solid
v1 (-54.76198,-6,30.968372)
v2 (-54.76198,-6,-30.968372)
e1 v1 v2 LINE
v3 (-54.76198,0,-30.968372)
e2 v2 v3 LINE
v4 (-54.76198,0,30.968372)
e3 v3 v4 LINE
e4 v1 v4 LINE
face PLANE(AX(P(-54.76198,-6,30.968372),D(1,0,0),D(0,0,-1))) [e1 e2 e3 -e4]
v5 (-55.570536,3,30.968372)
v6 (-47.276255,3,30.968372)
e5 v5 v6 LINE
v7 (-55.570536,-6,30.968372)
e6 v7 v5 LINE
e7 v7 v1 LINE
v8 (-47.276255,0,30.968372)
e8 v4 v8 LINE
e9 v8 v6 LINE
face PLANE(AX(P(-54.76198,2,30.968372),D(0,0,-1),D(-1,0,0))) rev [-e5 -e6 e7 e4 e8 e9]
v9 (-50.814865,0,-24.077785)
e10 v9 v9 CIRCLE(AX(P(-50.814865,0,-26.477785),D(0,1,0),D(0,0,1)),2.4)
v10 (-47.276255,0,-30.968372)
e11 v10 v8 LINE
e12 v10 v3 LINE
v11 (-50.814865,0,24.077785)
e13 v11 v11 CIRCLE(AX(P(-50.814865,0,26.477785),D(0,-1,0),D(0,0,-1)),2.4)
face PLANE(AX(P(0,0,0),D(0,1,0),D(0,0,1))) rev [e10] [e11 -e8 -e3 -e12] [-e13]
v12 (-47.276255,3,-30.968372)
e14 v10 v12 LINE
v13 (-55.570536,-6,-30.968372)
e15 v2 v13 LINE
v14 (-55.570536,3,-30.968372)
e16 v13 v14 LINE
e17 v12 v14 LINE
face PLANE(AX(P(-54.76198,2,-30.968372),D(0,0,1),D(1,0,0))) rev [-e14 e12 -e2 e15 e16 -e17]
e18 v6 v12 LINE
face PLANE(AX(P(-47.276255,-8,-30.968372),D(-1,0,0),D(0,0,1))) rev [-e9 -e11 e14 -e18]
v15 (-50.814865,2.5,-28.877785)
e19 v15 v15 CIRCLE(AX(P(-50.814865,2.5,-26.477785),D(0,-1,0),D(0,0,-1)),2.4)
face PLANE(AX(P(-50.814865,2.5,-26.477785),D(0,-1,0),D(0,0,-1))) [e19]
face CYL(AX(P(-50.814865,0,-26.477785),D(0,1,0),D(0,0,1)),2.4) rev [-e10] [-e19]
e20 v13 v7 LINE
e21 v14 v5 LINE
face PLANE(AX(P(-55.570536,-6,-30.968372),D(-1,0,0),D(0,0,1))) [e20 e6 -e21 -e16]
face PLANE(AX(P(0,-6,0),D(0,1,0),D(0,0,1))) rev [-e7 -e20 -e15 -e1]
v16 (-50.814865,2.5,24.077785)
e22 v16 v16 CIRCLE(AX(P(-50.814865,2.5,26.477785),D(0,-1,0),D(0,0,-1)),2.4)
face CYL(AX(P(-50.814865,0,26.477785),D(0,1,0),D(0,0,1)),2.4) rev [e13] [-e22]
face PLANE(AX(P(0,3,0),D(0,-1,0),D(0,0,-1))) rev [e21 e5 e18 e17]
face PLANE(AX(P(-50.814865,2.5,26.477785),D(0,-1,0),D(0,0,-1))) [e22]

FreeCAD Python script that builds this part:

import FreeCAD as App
import Part
import Sketcher
Q = App.Units.Quantity

doc = App.newDocument("Part")
params = doc.addObject("Spreadsheet::Sheet", "Params")
for row, (alias, value) in enumerate([
    ("pad1_length", "2 mm"),
    ("sketch2_diameter", "4.8 mm"),
    ("pocket1_length", "127.887482 mm"),
    ("sketch3_diameter", "4.8 mm"),
    ("pocket2_length", "127.887482 mm"),
    ("pocket4_length", "10 mm"),
    ("pad2_length", "8 mm"),
    ("pad3_length", "1 mm"),
    ("sketch8_diameter", "4.8 mm"),
    ("pocket5_length", "0.5 mm"),
], start=1):
    params.set(f"A{row}", alias)
    params.set(f"B{row}", "=" + value)
    params.setAlias(f"B{row}", alias)

body = doc.addObject("PartDesign::Body", "Body")

# Sketch on XZ plane
sketch1 = body.newObject("Sketcher::SketchObject", "Sketch")
sketch1.AttachmentSupport = (doc.getObject("XZ_Plane"), [""])
sketch1.MapMode = "FlatFace"
sketch1.addGeometry(Part.LineSegment(App.Vector(-54.76198, -30.968372, 0), App.Vector(-54.76198, 30.968372, 0)), False)
sketch1.addGeometry(Part.LineSegment(App.Vector(-54.76198, 30.968372, 0), App.Vector(54, 30.968372, 0)), False)
sketch1.addGeometry(Part.LineSegment(App.Vector(54, 30.968372, 0), App.Vector(54, -30.968372, 0)), False)
sketch1.addGeometry(Part.LineSegment(App.Vector(54, -30.968372, 0), App.Vector(-54.76198, -30.968372, 0)), False)
sketch1.addConstraint(Sketcher.Constraint("Coincident", 0, 2, 1, 1))
sketch1.addConstraint(Sketcher.Constraint("Coincident", 1, 2, 2, 1))
sketch1.addConstraint(Sketcher.Constraint("Coincident", 2, 2, 3, 1))
sketch1.addConstraint(Sketcher.Constraint("Coincident", 3, 2, 0, 1))
sketch1.addConstraint(Sketcher.Constraint("Vertical", 0))
sketch1.addConstraint(Sketcher.Constraint("Horizontal", 1))
sketch1.addConstraint(Sketcher.Constraint("Vertical", 2))
sketch1.addConstraint(Sketcher.Constraint("Horizontal", 3))
sketch1.addConstraint(Sketcher.Constraint("DistanceX", -1, 1, 1, 2, Q("54 mm")))
sketch1.addConstraint(Sketcher.Constraint("DistanceX", 1, 1, 1, 2, Q("108.76198 mm")))
sketch1.addConstraint(Sketcher.Constraint("DistanceY", 0, 1, 0, 2, Q("61.936744 mm")))
sketch1.addConstraint(Sketcher.Constraint("DistanceY", -1, 1, 0, 2, Q("30.968372 mm")))
pad1 = body.newObject("PartDesign::Pad", "Pad")
pad1.Profile = sketch1
pad1.setExpression("Length", "Params.pad1_length")
pad1.Reversed = True

# Sketch on XZ plane
sketch2 = body.newObject("Sketcher::SketchObject", "Sketch001")
sketch2.AttachmentSupport = (doc.getObject("XZ_Plane"), [""])
sketch2.MapMode = "FlatFace"
sketch2.AttachmentOffset = App.Placement(App.Vector(0, 0, -2), App.Rotation())
sketch2.addGeometry(Part.Circle(App.Vector(-50.814865, -26.477785, 0), App.Vector(0, 0, 1), 2.4), False)
sketch2.addConstraint(Sketcher.Constraint("Diameter", 0, Q("4.8 mm")))
sketch2.addConstraint(Sketcher.Constraint("DistanceX", 0, 3, -1, 1, Q("50.814865 mm")))
sketch2.addConstraint(Sketcher.Constraint("DistanceY", 0, 3, -1, 1, Q("26.477785 mm")))
sketch2.setExpression("Constraints[0]", "Params.sketch2_diameter")
pocket1 = body.newObject("PartDesign::Pocket", "Pocket")
pocket1.Profile = sketch2
pocket1.setExpression("Length", "Params.pocket1_length")
pocket1.Midplane = True
doc.recompute()

mirrored = body.newObject("PartDesign::Mirrored", "Mirrored")
mirrored.Originals = [pocket1]
mirrored.MirrorPlane = (doc.getObject("XY_Plane"), [""])
body.Tip = mirrored
doc.recompute()

datumplane = body.newObject("PartDesign::Plane", "DatumPlane")
datumplane.AttachmentSupport = (doc.getObject("YZ_Plane"), [""])
datumplane.MapMode = "FlatFace"
datumplane.AttachmentOffset = App.Placement(App.Vector(0, 0, -0.38099), App.Rotation())
mirrored2 = body.newObject("PartDesign::Mirrored", "Mirrored001")
mirrored2.Originals = [pocket1]
mirrored2.MirrorPlane = (datumplane, [""])
body.Tip = mirrored2

# Sketch on XZ plane
sketch3 = body.newObject("Sketcher::SketchObject", "Sketch002")
sketch3.AttachmentSupport = (doc.getObject("XZ_Plane"), [""])
sketch3.MapMode = "FlatFace"
sketch3.AttachmentOffset = App.Placement(App.Vector(0, 0, -2), App.Rotation())
sketch3.addGeometry(Part.Circle(App.Vector(50.052885, 26.477785, 0), App.Vector(0, 0, 1), 2.4), False)
sketch3.addConstraint(Sketcher.Constraint("Diameter", 0, Q("4.8 mm")))
sketch3.addConstraint(Sketcher.Constraint("DistanceX", -1, 1, 0, 3, Q("50.052885 mm")))
sketch3.addConstraint(Sketcher.Constraint("DistanceY", -1, 1, 0, 3, Q("26.477785 mm")))
sketch3.setExpression("Constraints[0]", "Params.sketch3_diameter")
pocket2 = body.newObject("PartDesign::Pocket", "Pocket001")
pocket2.Profile = sketch3
pocket2.setExpression("Length", "Params.pocket2_length")
pocket2.Midplane = True

# Sketch on XZ plane
sketch4 = body.newObject("Sketcher::SketchObject", "Sketch003")
sketch4.AttachmentSupport = (doc.getObject("XZ_Plane"), [""])
sketch4.MapMode = "FlatFace"
sketch4.AttachmentOffset = App.Placement(App.Vector(0, 0, -2), App.Rotation())
sketch4.addGeometry(Part.LineSegment(App.Vector(-47.012435, -28.277749, 0), App.Vector(-47.012435, 28.277749, 0)), False)
sketch4.addGeometry(Part.LineSegment(App.Vector(-47.012435, 28.277749, 0), App.Vector(47.012435, 28.277749, 0)), False)
sketch4.addGeometry(Part.LineSegment(App.Vector(47.012435, 28.277749, 0), App.Vector(47.012435, -28.277749, 0)), False)
sketch4.addGeometry(Part.LineSegment(App.Vector(47.012435, -28.277749, 0), App.Vector(-47.012435, -28.277749, 0)), False)
sketch4.addConstraint(Sketcher.Constraint("Coincident", 0, 2, 1, 1))
sketch4.addConstraint(Sketcher.Constraint("Coincident", 1, 2, 2, 1))
sketch4.addConstraint(Sketcher.Constraint("Coincident", 2, 2, 3, 1))
sketch4.addConstraint(Sketcher.Constraint("Coincident", 3, 2, 0, 1))
sketch4.addConstraint(Sketcher.Constraint("Vertical", 0))
sketch4.addConstraint(Sketcher.Constraint("Horizontal", 1))
sketch4.addConstraint(Sketcher.Constraint("Vertical", 2))
sketch4.addConstraint(Sketcher.Constraint("Horizontal", 3))
sketch4.addConstraint(Sketcher.Constraint("Symmetric", 0, 2, 2, 2, -1, 1))
sketch4.addConstraint(Sketcher.Constraint("DistanceY", 0, 1, 0, 2, Q("56.555499 mm")))
sketch4.addConstraint(Sketcher.Constraint("DistanceX", 1, 1, 1, 2, Q("94.02487 mm")))
pocket3 = body.newObject("PartDesign::Pocket", "Pocket002")
pocket3.Profile = sketch4
pocket3.Type = "ThroughAll"
pocket3.Reversed = True

# Sketch on XZ plane
sketch5 = body.newObject("Sketcher::SketchObject", "Sketch004")
sketch5.AttachmentSupport = (doc.getObject("XZ_Plane"), [""])
sketch5.MapMode = "FlatFace"
sketch5.AttachmentOffset = App.Placement(App.Vector(0, 0, -2), App.Rotation())
sketch5.addGeometry(Part.LineSegment(App.Vector(-47.276255, -30.968372, 0), App.Vector(-47.276255, 30.968372, 0)), False)
sketch5.addGeometry(Part.LineSegment(App.Vector(-47.276255, 30.968372, 0), App.Vector(54, 30.968372, 0)), False)
sketch5.addGeometry(Part.LineSegment(App.Vector(54, 30.968372, 0), App.Vector(54, -30.968372, 0)), False)
sketch5.addGeometry(Part.LineSegment(App.Vector(54, -30.968372, 0), App.Vector(-47.276255, -30.968372, 0)), False)
sketch5.addConstraint(Sketcher.Constraint("Coincident", 0, 2, 1, 1))
sketch5.addConstraint(Sketcher.Constraint("Coincident", 1, 2, 2, 1))
sketch5.addConstraint(Sketcher.Constraint("Coincident", 2, 2, 3, 1))
sketch5.addConstraint(Sketcher.Constraint("Coincident", 3, 2, 0, 1))
sketch5.addConstraint(Sketcher.Constraint("Vertical", 0))
sketch5.addConstraint(Sketcher.Constraint("Horizontal", 1))
sketch5.addConstraint(Sketcher.Constraint("Vertical", 2))
sketch5.addConstraint(Sketcher.Constraint("Horizontal", 3))
sketch5.addConstraint(Sketcher.Constraint("DistanceX", -1, 1, 1, 2, Q("54 mm")))
sketch5.addConstraint(Sketcher.Constraint("DistanceX", 1, 1, 1, 2, Q("101.276255 mm")))
sketch5.addConstraint(Sketcher.Constraint("DistanceY", 0, 1, 0, 2, Q("61.936744 mm")))
sketch5.addConstraint(Sketcher.Constraint("DistanceY", -1, 1, 0, 2, Q("30.968372 mm")))
pocket4 = body.newObject("PartDesign::Pocket", "Pocket003")
pocket4.Profile = sketch5
pocket4.setExpression("Length", "Params.pocket4_length")
pocket4.Reversed = True

# Sketch on XZ plane
sketch6 = body.newObject("Sketcher::SketchObject", "Sketch005")
sketch6.AttachmentSupport = (doc.getObject("XZ_Plane"), [""])
sketch6.MapMode = "FlatFace"
sketch6.AttachmentOffset = App.Placement(App.Vector(0, 0, -2), App.Rotation())
sketch6.addGeometry(Part.LineSegment(App.Vector(-55.570536, -30.968372, 0), App.Vector(-55.570536, 30.968372, 0)), False)
sketch6.addGeometry(Part.LineSegment(App.Vector(-55.570536, 30.968372, 0), App.Vector(-54.76198, 30.968372, 0)), False)
sketch6.addGeometry(Part.LineSegment(App.Vector(-54.76198, 30.968372, 0), App.Vector(-54.76198, -30.968372, 0)), False)
sketch6.addGeometry(Part.LineSegment(App.Vector(-54.76198, -30.968372, 0), App.Vector(-55.570536, -30.968372, 0)), False)
sketch6.addConstraint(Sketcher.Constraint("Coincident", 0, 2, 1, 1))
sketch6.addConstraint(Sketcher.Constraint("Coincident", 1, 2, 2, 1))
sketch6.addConstraint(Sketcher.Constraint("Coincident", 2, 2, 3, 1))
sketch6.addConstraint(Sketcher.Constraint("Coincident", 3, 2, 0, 1))
sketch6.addConstraint(Sketcher.Constraint("Vertical", 0))
sketch6.addConstraint(Sketcher.Constraint("Horizontal", 1))
sketch6.addConstraint(Sketcher.Constraint("Vertical", 2))
sketch6.addConstraint(Sketcher.Constraint("Horizontal", 3))
sketch6.addConstraint(Sketcher.Constraint("DistanceX", 1, 1, 1, 2, Q("0.808556 mm")))
sketch6.addConstraint(Sketcher.Constraint("DistanceY", 0, 1, 0, 2, Q("61.936744 mm")))
sketch6.addConstraint(Sketcher.Constraint("DistanceX", 1, 2, -1, 1, Q("54.76198 mm")))
sketch6.addConstraint(Sketcher.Constraint("DistanceY", -1, 1, 0, 2, Q("30.968372 mm")))
pad2 = body.newObject("PartDesign::Pad", "Pad001")
pad2.Profile = sketch6
pad2.setExpression("Length", "Params.pad2_length")

# Sketch on XZ plane
sketch7 = body.newObject("Sketcher::SketchObject", "Sketch006")
sketch7.AttachmentSupport = (doc.getObject("XZ_Plane"), [""])
sketch7.MapMode = "FlatFace"
sketch7.AttachmentOffset = App.Placement(App.Vector(0, 0, -2), App.Rotation())
sketch7.addGeometry(Part.LineSegment(App.Vector(-55.570536, -30.968372, 0), App.Vector(-55.570536, 30.968372, 0)), False)
sketch7.addGeometry(Part.LineSegment(App.Vector(-55.570536, 30.968372, 0), App.Vector(-47.276255, 30.968372, 0)), False)
sketch7.addGeometry(Part.LineSegment(App.Vector(-47.276255, 30.968372, 0), App.Vector(-47.276255, -30.968372, 0)), False)
sketch7.addGeometry(Part.LineSegment(App.Vector(-47.276255, -30.968372, 0), App.Vector(-55.570536, -30.968372, 0)), False)
sketch7.addConstraint(Sketcher.Constraint("Coincident", 0, 2, 1, 1))
sketch7.addConstraint(Sketcher.Constraint("Coincident", 1, 2, 2, 1))
sketch7.addConstraint(Sketcher.Constraint("Coincident", 2, 2, 3, 1))
sketch7.addConstraint(Sketcher.Constraint("Coincident", 3, 2, 0, 1))
sketch7.addConstraint(Sketcher.Constraint("Vertical", 0))
sketch7.addConstraint(Sketcher.Constraint("Horizontal", 1))
sketch7.addConstraint(Sketcher.Constraint("Vertical", 2))
sketch7.addConstraint(Sketcher.Constraint("Horizontal", 3))
sketch7.addConstraint(Sketcher.Constraint("DistanceX", 1, 1, 1, 2, Q("8.294281 mm")))
sketch7.addConstraint(Sketcher.Constraint("DistanceY", 0, 1, 0, 2, Q("61.936744 mm")))
sketch7.addConstraint(Sketcher.Constraint("DistanceX", 0, 2, -1, 1, Q("55.570536 mm")))
sketch7.addConstraint(Sketcher.Constraint("DistanceY", -1, 1, 0, 2, Q("30.968372 mm")))
pad3 = body.newObject("PartDesign::Pad", "Pad002")
pad3.Profile = sketch7
pad3.setExpression("Length", "Params.pad3_length")
pad3.Reversed = True

# Sketch on XZ plane
sketch8 = body.newObject("Sketcher::SketchObject", "Sketch007")
sketch8.AttachmentSupport = (doc.getObject("XZ_Plane"), [""])
sketch8.MapMode = "FlatFace"
sketch8.AttachmentOffset = App.Placement(App.Vector(0, 0, -2.5), App.Rotation())
sketch8.addGeometry(Part.Circle(App.Vector(-50.814865, -26.477785, 0), App.Vector(0, 0, 1), 2.4), False)
sketch8.addGeometry(Part.Circle(App.Vector(-50.814865, 26.477785, 0), App.Vector(0, 0, 1), 2.4), False)
sketch8.addConstraint(Sketcher.Constraint("Equal", 0, 1))
sketch8.addConstraint(Sketcher.Constraint("Symmetric", 0, 3, 1, 3, -1))
sketch8.addConstraint(Sketcher.Constraint("Diameter", 0, Q("4.8 mm")))
sketch8.addConstraint(Sketcher.Constraint("DistanceY", 0, 3, 1, 3, Q("52.955569 mm")))
sketch8.addConstraint(Sketcher.Constraint("DistanceX", 0, 3, -1, 1, Q("50.814865 mm")))
sketch8.setExpression("Constraints[2]", "Params.sketch8_diameter")
pocket5 = body.newObject("PartDesign::Pocket", "Pocket004")
pocket5.Profile = sketch8
pocket5.setExpression("Length", "Params.pocket5_length")
pocket5.Reversed = True

doc.recompute()
